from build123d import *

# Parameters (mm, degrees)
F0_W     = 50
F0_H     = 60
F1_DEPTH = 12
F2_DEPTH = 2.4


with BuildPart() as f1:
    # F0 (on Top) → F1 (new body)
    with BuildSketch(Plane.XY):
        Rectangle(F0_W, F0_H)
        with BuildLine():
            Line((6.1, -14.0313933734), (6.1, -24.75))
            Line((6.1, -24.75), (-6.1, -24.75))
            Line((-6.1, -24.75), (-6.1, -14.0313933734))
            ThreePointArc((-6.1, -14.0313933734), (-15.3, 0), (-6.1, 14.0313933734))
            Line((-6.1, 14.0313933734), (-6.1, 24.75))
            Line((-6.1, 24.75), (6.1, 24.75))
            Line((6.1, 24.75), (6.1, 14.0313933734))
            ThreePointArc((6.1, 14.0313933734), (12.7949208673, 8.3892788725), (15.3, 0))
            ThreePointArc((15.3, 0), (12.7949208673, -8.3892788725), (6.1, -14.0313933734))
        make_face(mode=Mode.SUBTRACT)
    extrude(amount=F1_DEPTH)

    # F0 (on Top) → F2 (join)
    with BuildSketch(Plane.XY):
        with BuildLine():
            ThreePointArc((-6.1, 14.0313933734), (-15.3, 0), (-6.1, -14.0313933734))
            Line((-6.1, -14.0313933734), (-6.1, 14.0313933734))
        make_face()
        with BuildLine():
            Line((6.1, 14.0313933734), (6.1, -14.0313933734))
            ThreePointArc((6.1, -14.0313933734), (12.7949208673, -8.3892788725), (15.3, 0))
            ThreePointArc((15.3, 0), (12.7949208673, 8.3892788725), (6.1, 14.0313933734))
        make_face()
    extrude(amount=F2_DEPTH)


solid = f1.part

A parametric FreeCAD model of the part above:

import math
import FreeCAD as App
import Part
import Sketcher
from FreeCAD import Vector

doc = App.newDocument("Part")
body = doc.addObject("PartDesign::Body", "Body")

sketch1 = body.newObject("Sketcher::SketchObject", "Sketch")
sketch1.AttachmentSupport = (doc.getObject("XY_Plane"), [""])
sketch1.MapMode = "FlatFace"
sketch1.addGeometry(Part.LineSegment(Vector(-25, 30, 0), Vector(-25, -30, 0)), False)
sketch1.addGeometry(Part.LineSegment(Vector(-25, -30, 0), Vector(25, -30, 0)), False)
sketch1.addGeometry(Part.LineSegment(Vector(25, -30, 0), Vector(25, 30, 0)), False)
sketch1.addGeometry(Part.LineSegment(Vector(25, 30, 0), Vector(-25, 30, 0)), False)
sketch1.addGeometry(Part.ArcOfCircle(Part.Circle(Vector(0, 0, 0), Vector(0, 0, 1), 15.3), math.radians(-66.503515), math.radians(0)), False)
sketch1.addGeometry(Part.LineSegment(Vector(6.1, -14.031393, 0), Vector(6.1, -24.75, 0)), False)
sketch1.addGeometry(Part.LineSegment(Vector(6.1, -24.75, 0), Vector(-6.1, -24.75, 0)), False)
sketch1.addGeometry(Part.LineSegment(Vector(-6.1, -24.75, 0), Vector(-6.1, -14.031393, 0)), False)
sketch1.addGeometry(Part.ArcOfCircle(Part.Circle(Vector(0, 0, 0), Vector(0, 0, 1), 15.3), math.radians(113.496485), math.radians(246.503515)), False)
sketch1.addGeometry(Part.LineSegment(Vector(-6.1, 14.031393, 0), Vector(-6.1, 24.75, 0)), False)
sketch1.addGeometry(Part.LineSegment(Vector(-6.1, 24.75, 0), Vector(6.1, 24.75, 0)), False)
sketch1.addGeometry(Part.LineSegment(Vector(6.1, 24.75, 0), Vector(6.1, 14.031393, 0)), False)
sketch1.addGeometry(Part.ArcOfCircle(Part.Circle(Vector(0, 0, 0), Vector(0, 0, 1), 15.3), math.radians(0), math.radians(66.503515)), False)
sketch1.addConstraint(Sketcher.Constraint("Coincident", 0, 2, 1, 1))
sketch1.addConstraint(Sketcher.Constraint("Coincident", 1, 2, 2, 1))
sketch1.addConstraint(Sketcher.Constraint("Coincident", 2, 2, 3, 1))
sketch1.addConstraint(Sketcher.Constraint("Coincident", 3, 2, 0, 1))
sketch1.addConstraint(Sketcher.Constraint("Coincident", 4, 1, 5, 1))
sketch1.addConstraint(Sketcher.Constraint("Coincident", 5, 2, 6, 1))
sketch1.addConstraint(Sketcher.Constraint("Coincident", 6, 2, 7, 1))
sketch1.addConstraint(Sketcher.Constraint("Coincident", 7, 2, 8, 2))
sketch1.addConstraint(Sketcher.Constraint("Coincident", 8, 1, 9, 1))
sketch1.addConstraint(Sketcher.Constraint("Coincident", 9, 2, 10, 1))
sketch1.addConstraint(Sketcher.Constraint("Coincident", 10, 2, 11, 1))
sketch1.addConstraint(Sketcher.Constraint("Coincident", 11, 2, 12, 2))
sketch1.addConstraint(Sketcher.Constraint("Tangent", 12, 1, 4, 2))
sketch1.addConstraint(Sketcher.Constraint("Vertical", 0))
sketch1.addConstraint(Sketcher.Constraint("Horizontal", 1))
sketch1.addConstraint(Sketcher.Constraint("Vertical", 2))
sketch1.addConstraint(Sketcher.Constraint("Horizontal", 3))
sketch1.addConstraint(Sketcher.Constraint("Vertical", 5))
sketch1.addConstraint(Sketcher.Constraint("Horizontal", 6))
sketch1.addConstraint(Sketcher.Constraint("Vertical", 7))
sketch1.addConstraint(Sketcher.Constraint("Vertical", 9))
sketch1.addConstraint(Sketcher.Constraint("Horizontal", 10))
sketch1.addConstraint(Sketcher.Constraint("Vertical", 11))
sketch1.addConstraint(Sketcher.Constraint("Coincident", 4, 3, -1, 1))
sketch1.addConstraint(Sketcher.Constraint("Coincident", 8, 3, -1, 1))
sketch1.addConstraint(Sketcher.Constraint("Equal", 4, 8))
sketch1.addConstraint(Sketcher.Constraint("Equal", 8, 12))
sketch1.addConstraint(Sketcher.Constraint("Symmetric", 0, 2, 2, 2, -1, 1))
sketch1.addConstraint(Sketcher.Constraint("Symmetric", 5, 2, 9, 2, -1, 1))
sketch1.addConstraint(Sketcher.Constraint("PointOnObject", 12, 1, -1))
sketch1.addConstraint(Sketcher.Constraint("Horizontal", 4, 1, 7, 2))
sketch1.addConstraint(Sketcher.Constraint("Horizontal", 8, 1, 11, 2))
sketch1.addConstraint(Sketcher.Constraint("Radius", 4, 15.3))
sketch1.addConstraint(Sketcher.Constraint("DistanceX", 1, 1, 1, 2, 50.0))
sketch1.addConstraint(Sketcher.Constraint("DistanceY", 0, 2, 0, 1, 60.0))
sketch1.addConstraint(Sketcher.Constraint("DistanceX", 6, 2, 6, 1, 12.2))
sketch1.addConstraint(Sketcher.Constraint("DistanceY", 5, 2, -1, 1, 24.75))
pad1 = body.newObject("PartDesign::Pad", "Pad")
pad1.Profile = sketch1
pad1.Length = 12

sketch2 = body.newObject("Sketcher::SketchObject", "Sketch001")
sketch2.AttachmentSupport = (doc.getObject("XY_Plane"), [""])
sketch2.MapMode = "FlatFace"
sketch2.addGeometry(Part.ArcOfCircle(Part.Circle(Vector(0, 0, 0), Vector(0, 0, 1), 15.3), math.radians(113.496485), math.radians(246.503515)), False)
sketch2.addGeometry(Part.LineSegment(Vector(-6.1, -14.031393, 0), Vector(-6.1, 14.031393, 0)), False)
sketch2.addGeometry(Part.LineSegment(Vector(6.1, 14.031393, 0), Vector(6.1, -14.031393, 0)), False)
sketch2.addGeometry(Part.ArcOfCircle(Part.Circle(Vector(0, 0, 0), Vector(0, 0, 1), 15.3), math.radians(-66.503515), math.radians(0)), False)
sketch2.addGeometry(Part.ArcOfCircle(Part.Circle(Vector(0, 0, 0), Vector(0, 0, 1), 15.3), math.radians(0), math.radians(66.503515)), False)
sketch2.addConstraint(Sketcher.Constraint("Coincident", 0, 1, 1, 2))
sketch2.addConstraint(Sketcher.Constraint("Coincident", 1, 1, 0, 2))
sketch2.addConstraint(Sketcher.Constraint("Coincident", 2, 2, 3, 1))
sketch2.addConstraint(Sketcher.Constraint("Tangent", 3, 2, 4, 1))
sketch2.addConstraint(Sketcher.Constraint("Coincident", 4, 2, 2, 1))
sketch2.addConstraint(Sketcher.Constraint("Vertical", 1))
sketch2.addConstraint(Sketcher.Constraint("Vertical", 2))
sketch2.addConstraint(Sketcher.Constraint("Coincident", 0, 3, -1, 1))
sketch2.addConstraint(Sketcher.Constraint("Coincident", 3, 3, -1, 1))
sketch2.addConstraint(Sketcher.Constraint("Equal", 0, 3))
sketch2.addConstraint(Sketcher.Constraint("Equal", 3, 4))
sketch2.addConstraint(Sketcher.Constraint("PointOnObject", 3, 2, -1))
sketch2.addConstraint(Sketcher.Constraint("Horizontal", 1, 1, 2, 2))
sketch2.addConstraint(Sketcher.Constraint("Radius", 0, 15.3))
sketch2.addConstraint(Sketcher.Constraint("DistanceX", 0, 1, -1, 1, 6.1))
pad2 = body.newObject("PartDesign::Pad", "Pad001")
pad2.Profile = sketch2
pad2.Length = 2.4

doc.recompute()
